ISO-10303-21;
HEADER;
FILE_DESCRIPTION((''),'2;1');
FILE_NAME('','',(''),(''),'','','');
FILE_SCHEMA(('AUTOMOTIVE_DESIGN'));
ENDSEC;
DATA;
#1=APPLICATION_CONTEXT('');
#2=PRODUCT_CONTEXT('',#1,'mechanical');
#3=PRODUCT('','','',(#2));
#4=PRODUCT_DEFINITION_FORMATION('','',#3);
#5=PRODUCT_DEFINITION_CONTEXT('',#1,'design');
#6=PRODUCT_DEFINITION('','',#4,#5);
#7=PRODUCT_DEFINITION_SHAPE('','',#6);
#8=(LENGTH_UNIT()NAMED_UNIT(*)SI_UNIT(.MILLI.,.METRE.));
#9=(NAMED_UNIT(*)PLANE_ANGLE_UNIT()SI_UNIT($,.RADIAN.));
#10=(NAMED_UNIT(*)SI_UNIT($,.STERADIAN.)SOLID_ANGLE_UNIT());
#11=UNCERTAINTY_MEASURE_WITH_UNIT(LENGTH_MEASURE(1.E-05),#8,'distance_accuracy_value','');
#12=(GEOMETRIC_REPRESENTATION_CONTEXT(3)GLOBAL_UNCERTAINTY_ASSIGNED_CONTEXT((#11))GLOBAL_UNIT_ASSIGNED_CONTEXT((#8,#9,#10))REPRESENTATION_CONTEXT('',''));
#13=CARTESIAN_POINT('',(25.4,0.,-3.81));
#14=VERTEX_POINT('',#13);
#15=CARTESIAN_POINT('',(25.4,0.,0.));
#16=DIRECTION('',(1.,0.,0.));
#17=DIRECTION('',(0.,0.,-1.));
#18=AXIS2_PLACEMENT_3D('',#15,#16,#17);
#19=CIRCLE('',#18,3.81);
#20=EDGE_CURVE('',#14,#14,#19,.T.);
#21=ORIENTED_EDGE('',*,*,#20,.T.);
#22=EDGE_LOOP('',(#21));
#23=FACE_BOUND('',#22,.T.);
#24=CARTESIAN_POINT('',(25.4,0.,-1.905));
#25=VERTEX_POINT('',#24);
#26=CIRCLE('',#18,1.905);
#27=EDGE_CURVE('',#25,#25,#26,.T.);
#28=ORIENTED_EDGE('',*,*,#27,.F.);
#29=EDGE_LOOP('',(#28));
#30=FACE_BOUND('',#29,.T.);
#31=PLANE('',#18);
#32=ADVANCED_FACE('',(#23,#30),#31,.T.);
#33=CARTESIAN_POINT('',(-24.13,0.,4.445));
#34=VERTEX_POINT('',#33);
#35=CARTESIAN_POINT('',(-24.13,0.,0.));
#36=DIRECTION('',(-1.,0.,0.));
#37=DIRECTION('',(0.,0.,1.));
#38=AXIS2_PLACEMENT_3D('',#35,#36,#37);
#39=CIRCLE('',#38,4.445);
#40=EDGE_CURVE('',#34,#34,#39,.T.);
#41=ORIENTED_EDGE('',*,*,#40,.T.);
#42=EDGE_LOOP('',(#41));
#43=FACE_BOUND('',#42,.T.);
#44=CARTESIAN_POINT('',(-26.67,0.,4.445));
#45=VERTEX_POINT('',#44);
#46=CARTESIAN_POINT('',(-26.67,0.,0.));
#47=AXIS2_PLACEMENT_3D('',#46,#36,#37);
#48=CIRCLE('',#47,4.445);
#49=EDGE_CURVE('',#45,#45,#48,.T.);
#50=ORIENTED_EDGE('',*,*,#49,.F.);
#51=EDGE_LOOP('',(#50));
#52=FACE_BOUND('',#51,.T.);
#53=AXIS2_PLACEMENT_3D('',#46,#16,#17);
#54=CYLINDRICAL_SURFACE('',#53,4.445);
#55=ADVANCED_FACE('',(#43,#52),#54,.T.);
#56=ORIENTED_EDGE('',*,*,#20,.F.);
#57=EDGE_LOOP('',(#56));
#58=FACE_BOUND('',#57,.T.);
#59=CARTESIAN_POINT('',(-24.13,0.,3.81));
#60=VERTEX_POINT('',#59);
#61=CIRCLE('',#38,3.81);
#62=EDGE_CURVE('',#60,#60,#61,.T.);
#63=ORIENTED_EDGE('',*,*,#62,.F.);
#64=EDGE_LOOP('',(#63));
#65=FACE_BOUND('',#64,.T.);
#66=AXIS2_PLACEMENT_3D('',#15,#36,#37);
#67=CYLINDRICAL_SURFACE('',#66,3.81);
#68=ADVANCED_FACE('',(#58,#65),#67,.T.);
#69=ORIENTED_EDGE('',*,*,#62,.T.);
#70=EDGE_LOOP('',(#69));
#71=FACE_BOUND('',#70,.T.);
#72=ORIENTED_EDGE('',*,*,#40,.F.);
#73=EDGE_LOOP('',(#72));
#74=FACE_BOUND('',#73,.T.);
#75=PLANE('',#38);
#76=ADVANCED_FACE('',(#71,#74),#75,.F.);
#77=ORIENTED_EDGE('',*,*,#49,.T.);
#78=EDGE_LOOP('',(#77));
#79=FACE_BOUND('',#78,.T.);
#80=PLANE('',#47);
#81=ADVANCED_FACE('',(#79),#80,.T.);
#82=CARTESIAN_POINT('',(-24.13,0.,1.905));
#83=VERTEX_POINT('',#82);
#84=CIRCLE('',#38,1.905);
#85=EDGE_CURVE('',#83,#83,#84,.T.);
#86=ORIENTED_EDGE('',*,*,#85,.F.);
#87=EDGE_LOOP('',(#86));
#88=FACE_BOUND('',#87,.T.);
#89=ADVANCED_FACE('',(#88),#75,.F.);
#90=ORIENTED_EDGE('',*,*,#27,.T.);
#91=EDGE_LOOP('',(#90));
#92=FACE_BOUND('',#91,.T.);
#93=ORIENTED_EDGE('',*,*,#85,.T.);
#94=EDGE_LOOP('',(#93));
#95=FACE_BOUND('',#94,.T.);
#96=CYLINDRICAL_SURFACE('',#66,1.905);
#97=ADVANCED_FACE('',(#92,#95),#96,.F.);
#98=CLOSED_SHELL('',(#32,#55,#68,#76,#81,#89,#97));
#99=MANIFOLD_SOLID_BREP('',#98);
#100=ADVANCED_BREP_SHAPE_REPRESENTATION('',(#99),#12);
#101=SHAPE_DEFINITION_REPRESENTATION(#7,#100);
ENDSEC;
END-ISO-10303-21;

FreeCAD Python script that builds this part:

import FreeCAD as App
import Part
import Sketcher
Q = App.Units.Quantity

doc = App.newDocument("Part")
body = doc.addObject("PartDesign::Body", "Body")

# Sketch on YZ plane
sketch1 = doc.addObject("Sketcher::SketchObject", "Sketch")
body.addObject(sketch1)
sketch1.AttachmentSupport = (doc.YZ_Plane, [""])
sketch1.MapMode = "FlatFace"
sketch1.addGeometry([
    Part.Circle(App.Vector(0, 0, 0), App.Vector(0, 0, 1), 3.8),
    Part.Circle(App.Vector(0, 0, 0), App.Vector(0, 0, 1), 1.9),
], False)
sketch1.addConstraint([
    Sketcher.Constraint("Coincident", 0, 3, -1, 1),
    Sketcher.Constraint("Coincident", 1, 3, -1, 1),
    Sketcher.Constraint("Diameter", 0, Q("0.3 in")),
    Sketcher.Constraint("Diameter", 1, Q("0.15 in")),
])
pad1 = doc.addObject("PartDesign::Pad", "Pad")
body.addObject(pad1)
pad1.Profile = sketch1
pad1.Length = Q("2 in")
pad1.Midplane = True

# Sketch on YZ plane
sketch2 = doc.addObject("Sketcher::SketchObject", "Sketch001")
body.addObject(sketch2)
sketch2.AttachmentSupport = (doc.YZ_Plane, [""])
sketch2.MapMode = "FlatFace"
sketch2.AttachmentOffset = App.Placement(App.Vector(0, 0, -1 * 25.4), App.Rotation())
sketch2.addGeometry(Part.Circle(App.Vector(0, 0, 0), App.Vector(0, 0, 1), 4.4), False)
sketch2.addConstraint([
    Sketcher.Constraint("Coincident", 0, 3, -1, 1),
    Sketcher.Constraint("Diameter", 0, Q("0.35 in")),
])
pad2 = doc.addObject("PartDesign::Pad", "Pad001")
body.addObject(pad2)
pad2.Profile = sketch2
pad2.Length = Q("0.1 in")
pad2.Midplane = True

doc.recompute()
